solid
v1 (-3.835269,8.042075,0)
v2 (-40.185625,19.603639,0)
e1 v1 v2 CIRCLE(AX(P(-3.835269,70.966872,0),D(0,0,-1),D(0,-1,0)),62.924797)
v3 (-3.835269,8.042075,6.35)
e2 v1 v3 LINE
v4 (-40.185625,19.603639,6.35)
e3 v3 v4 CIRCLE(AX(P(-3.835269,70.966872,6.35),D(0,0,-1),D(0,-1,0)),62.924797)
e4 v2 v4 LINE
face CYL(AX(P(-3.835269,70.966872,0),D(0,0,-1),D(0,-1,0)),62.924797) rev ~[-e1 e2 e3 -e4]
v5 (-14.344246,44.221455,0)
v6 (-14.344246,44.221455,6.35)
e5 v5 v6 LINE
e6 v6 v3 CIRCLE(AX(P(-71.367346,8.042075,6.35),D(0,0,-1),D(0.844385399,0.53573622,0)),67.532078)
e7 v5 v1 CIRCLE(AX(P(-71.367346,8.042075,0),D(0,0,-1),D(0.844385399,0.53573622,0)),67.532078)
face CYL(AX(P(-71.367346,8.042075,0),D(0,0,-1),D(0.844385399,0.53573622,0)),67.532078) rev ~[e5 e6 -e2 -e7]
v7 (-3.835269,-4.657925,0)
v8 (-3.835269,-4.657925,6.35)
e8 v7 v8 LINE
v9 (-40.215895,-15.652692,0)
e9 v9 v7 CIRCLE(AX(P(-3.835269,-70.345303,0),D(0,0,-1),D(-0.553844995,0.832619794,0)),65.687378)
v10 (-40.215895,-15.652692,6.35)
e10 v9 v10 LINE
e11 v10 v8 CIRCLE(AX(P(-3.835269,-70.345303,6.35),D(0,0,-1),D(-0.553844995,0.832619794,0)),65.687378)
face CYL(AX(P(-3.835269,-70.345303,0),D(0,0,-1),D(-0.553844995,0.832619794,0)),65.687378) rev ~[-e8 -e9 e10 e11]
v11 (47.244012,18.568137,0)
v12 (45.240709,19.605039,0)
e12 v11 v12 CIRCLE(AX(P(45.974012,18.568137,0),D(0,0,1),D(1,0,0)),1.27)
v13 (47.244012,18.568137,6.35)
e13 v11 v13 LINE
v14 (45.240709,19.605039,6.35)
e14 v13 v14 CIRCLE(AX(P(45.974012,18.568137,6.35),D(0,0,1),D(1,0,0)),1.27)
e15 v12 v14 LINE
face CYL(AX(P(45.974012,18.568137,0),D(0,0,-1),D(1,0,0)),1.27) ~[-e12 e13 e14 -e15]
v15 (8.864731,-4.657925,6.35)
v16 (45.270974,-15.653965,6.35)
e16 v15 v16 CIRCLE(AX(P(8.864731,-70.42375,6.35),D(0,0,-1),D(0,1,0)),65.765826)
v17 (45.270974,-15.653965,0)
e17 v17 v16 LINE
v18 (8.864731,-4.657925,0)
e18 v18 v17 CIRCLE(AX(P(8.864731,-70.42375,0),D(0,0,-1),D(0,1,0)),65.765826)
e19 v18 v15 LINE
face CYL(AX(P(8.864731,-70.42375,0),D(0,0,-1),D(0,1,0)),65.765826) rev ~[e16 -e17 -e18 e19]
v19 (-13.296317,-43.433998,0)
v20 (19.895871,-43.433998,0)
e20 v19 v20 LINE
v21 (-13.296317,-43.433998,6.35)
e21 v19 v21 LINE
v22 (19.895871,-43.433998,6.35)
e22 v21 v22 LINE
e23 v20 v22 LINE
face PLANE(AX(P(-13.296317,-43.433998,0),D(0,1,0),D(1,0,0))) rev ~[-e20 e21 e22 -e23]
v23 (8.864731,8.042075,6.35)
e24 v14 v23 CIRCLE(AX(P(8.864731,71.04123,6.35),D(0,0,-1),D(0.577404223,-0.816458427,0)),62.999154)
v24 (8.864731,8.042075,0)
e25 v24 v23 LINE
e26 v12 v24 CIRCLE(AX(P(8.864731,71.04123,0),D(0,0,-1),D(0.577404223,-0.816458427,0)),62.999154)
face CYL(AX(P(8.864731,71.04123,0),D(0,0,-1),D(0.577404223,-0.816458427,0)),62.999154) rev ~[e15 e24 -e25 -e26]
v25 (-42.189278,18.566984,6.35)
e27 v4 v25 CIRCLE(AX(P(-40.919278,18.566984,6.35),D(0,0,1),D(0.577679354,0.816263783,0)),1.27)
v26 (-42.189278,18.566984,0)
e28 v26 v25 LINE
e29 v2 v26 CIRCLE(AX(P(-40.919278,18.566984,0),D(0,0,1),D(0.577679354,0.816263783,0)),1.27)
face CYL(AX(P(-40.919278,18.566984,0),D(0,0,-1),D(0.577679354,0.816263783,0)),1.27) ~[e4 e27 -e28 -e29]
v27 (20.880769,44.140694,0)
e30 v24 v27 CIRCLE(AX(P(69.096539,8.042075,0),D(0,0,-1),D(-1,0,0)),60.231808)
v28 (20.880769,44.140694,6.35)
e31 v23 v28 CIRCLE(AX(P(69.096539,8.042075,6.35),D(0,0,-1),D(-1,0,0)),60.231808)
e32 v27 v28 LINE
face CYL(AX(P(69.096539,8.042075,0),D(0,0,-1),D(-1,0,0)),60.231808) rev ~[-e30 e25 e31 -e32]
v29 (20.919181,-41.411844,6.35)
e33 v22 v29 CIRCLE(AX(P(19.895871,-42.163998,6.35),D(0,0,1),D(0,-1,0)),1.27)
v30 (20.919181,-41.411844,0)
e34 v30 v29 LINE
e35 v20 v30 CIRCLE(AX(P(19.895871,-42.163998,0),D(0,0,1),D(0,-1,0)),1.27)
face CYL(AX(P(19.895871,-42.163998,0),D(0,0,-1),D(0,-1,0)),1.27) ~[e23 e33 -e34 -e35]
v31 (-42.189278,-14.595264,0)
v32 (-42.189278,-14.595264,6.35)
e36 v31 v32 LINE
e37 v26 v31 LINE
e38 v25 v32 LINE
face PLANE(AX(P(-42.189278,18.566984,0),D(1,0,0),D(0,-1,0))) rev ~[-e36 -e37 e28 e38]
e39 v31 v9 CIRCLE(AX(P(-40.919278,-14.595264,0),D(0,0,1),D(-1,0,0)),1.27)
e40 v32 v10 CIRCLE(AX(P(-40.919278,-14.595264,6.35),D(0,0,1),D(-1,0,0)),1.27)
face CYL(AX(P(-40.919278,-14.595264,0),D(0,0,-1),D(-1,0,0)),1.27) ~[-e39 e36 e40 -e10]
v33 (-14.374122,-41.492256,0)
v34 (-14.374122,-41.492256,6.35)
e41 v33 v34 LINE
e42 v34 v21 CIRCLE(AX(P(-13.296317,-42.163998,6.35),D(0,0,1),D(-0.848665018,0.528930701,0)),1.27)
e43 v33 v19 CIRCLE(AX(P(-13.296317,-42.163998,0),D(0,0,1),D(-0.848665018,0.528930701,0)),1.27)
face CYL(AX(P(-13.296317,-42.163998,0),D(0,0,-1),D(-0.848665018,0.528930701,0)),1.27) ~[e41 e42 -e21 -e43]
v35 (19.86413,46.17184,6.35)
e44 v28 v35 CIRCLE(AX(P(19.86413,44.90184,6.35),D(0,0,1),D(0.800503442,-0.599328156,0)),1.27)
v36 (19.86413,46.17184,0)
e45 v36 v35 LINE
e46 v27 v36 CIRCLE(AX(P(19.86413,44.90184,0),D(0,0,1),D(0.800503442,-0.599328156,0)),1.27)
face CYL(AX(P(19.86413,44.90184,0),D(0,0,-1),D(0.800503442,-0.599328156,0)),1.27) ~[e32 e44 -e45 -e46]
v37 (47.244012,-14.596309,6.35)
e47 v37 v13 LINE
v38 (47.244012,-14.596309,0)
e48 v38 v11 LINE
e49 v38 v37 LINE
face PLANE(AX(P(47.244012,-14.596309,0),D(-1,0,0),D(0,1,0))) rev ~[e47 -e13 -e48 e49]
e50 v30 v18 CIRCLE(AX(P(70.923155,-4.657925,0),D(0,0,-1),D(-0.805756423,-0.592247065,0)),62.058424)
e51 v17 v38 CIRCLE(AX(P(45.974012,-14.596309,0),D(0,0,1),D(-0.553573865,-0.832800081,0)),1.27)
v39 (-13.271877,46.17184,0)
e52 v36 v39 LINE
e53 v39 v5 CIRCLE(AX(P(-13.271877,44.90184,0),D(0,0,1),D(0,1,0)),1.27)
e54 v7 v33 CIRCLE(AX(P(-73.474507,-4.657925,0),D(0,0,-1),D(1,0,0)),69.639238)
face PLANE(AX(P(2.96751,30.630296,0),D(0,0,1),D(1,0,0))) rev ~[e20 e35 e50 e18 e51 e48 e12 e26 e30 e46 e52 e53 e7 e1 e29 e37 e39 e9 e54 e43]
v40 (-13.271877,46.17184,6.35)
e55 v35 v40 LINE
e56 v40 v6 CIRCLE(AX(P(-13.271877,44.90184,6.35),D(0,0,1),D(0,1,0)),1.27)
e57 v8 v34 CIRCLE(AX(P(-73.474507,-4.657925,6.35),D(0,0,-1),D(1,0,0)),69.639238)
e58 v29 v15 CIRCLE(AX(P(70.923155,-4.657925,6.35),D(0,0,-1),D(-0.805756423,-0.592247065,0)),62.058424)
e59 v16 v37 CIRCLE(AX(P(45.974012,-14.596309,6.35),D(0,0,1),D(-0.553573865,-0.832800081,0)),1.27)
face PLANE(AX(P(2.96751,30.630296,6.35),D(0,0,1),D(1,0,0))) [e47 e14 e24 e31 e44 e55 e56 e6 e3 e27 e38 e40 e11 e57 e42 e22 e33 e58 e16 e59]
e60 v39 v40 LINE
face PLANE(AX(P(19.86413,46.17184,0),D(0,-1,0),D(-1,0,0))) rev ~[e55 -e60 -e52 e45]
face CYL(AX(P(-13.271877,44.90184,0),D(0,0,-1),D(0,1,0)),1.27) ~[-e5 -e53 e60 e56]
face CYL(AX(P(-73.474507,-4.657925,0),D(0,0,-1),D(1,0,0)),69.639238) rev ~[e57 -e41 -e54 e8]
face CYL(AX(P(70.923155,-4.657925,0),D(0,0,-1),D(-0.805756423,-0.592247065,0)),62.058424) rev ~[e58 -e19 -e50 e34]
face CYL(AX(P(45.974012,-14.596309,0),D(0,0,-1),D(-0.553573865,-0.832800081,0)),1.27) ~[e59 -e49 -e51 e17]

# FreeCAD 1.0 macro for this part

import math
import FreeCAD as App
import Part
import Sketcher
from FreeCAD import Vector
Q = App.Units.Quantity

doc = App.newDocument("Part")
body = doc.addObject("PartDesign::Body", "Body")

# Sketch on XY plane
sketch1 = body.newObject("Sketcher::SketchObject", "Sketch")
sketch1.AttachmentSupport = (doc.getObject("XY_Plane"), [""])
sketch1.MapMode = "FlatFace"
sketch1.addGeometry([
    Part.ArcOfCircle(Part.Circle(Vector(-71.367346, 8.042075, 0), Vector(0, 0, 1), 67.532078), math.radians(0), math.radians(32.393854)),  # 0
    Part.ArcOfCircle(Part.Circle(Vector(-3.835269, 70.966872, 0), Vector(0, 0, 1), 62.924797), math.radians(-125.287486), math.radians(-90)),  # 1
    Part.ArcOfCircle(Part.Circle(Vector(-40.919278, 18.566984, 0), Vector(0, 0, 1), 1.27), math.radians(54.712514), math.radians(180)),  # 2
    Part.LineSegment(Vector(-42.189278, 18.566984, 0), Vector(-42.189278, -14.595264, 0)),  # 3
    Part.ArcOfCircle(Part.Circle(Vector(-40.919278, -14.595264, 0), Vector(0, 0, 1), 1.27), math.radians(180), math.radians(303.631198)),  # 4
    Part.ArcOfCircle(Part.Circle(Vector(-3.835269, -70.345303, 0), Vector(0, 0, 1), 65.687378), math.radians(90), math.radians(123.631198)),  # 5
    Part.ArcOfCircle(Part.Circle(Vector(-73.474507, -4.657925, 0), Vector(0, 0, 1), 69.639238), math.radians(-31.933235), math.radians(0)),  # 6
    Part.ArcOfCircle(Part.Circle(Vector(-13.296317, -42.163998, 0), Vector(0, 0, 1), 1.27), math.radians(148.066765), math.radians(270)),  # 7
    Part.LineSegment(Vector(-13.296317, -43.433998, 0), Vector(19.895871, -43.433998, 0)),  # 8
    Part.ArcOfCircle(Part.Circle(Vector(19.895871, -42.163998, 0), Vector(0, 0, 1), 1.27), math.radians(-90), math.radians(36.316629)),  # 9
    Part.ArcOfCircle(Part.Circle(Vector(70.923155, -4.657925, 0), Vector(0, 0, 1), 62.058424), math.radians(-180), math.radians(-143.683371)),  # 10
    Part.ArcOfCircle(Part.Circle(Vector(8.864731, -70.42375, 0), Vector(0, 0, 1), 65.765826), math.radians(56.387458), math.radians(90)),  # 11
    Part.ArcOfCircle(Part.Circle(Vector(45.974012, -14.596309, 0), Vector(0, 0, 1), 1.27), math.radians(-123.612542), math.radians(0)),  # 12
    Part.LineSegment(Vector(47.244012, -14.596309, 0), Vector(47.244012, 18.568137, 0)),  # 13
    Part.ArcOfCircle(Part.Circle(Vector(45.974012, 18.568137, 0), Vector(0, 0, 1), 1.27), math.radians(0), math.radians(125.268176)),  # 14
    Part.ArcOfCircle(Part.Circle(Vector(8.864731, 71.04123, 0), Vector(0, 0, 1), 62.999154), math.radians(-90), math.radians(-54.731824)),  # 15
    Part.ArcOfCircle(Part.Circle(Vector(69.096539, 8.042075, 0), Vector(0, 0, 1), 60.231808), math.radians(143.178204), math.radians(180)),  # 16
    Part.ArcOfCircle(Part.Circle(Vector(19.86413, 44.90184, 0), Vector(0, 0, 1), 1.27), math.radians(-36.821795), math.radians(90)),  # 17
    Part.LineSegment(Vector(19.86413, 46.17184, 0), Vector(-13.271877, 46.17184, 0)),  # 18
    Part.ArcOfCircle(Part.Circle(Vector(-13.271877, 44.90184, 0), Vector(0, 0, 1), 1.27), math.radians(90), math.radians(212.393854)),  # 19
], False)
sketch1.addConstraint([
    Sketcher.Constraint("Coincident", 0, 1, 1, 2),
    Sketcher.Constraint("Tangent", 1, 1, 2, 1),
    Sketcher.Constraint("Tangent", 2, 2, 3, 1),
    Sketcher.Constraint("Tangent", 3, 2, 4, 1),
    Sketcher.Constraint("Tangent", 4, 2, 5, 2),
    Sketcher.Constraint("Coincident", 5, 1, 6, 2),
    Sketcher.Constraint("Tangent", 6, 1, 7, 1),
    Sketcher.Constraint("Tangent", 7, 2, 8, 1),
    Sketcher.Constraint("Tangent", 8, 2, 9, 1),
    Sketcher.Constraint("Tangent", 9, 2, 10, 2),
    Sketcher.Constraint("Coincident", 10, 1, 11, 2),
    Sketcher.Constraint("Tangent", 11, 1, 12, 1),
    Sketcher.Constraint("Tangent", 12, 2, 13, 1),
    Sketcher.Constraint("Tangent", 13, 2, 14, 1),
    Sketcher.Constraint("Tangent", 14, 2, 15, 2),
    Sketcher.Constraint("Coincident", 15, 1, 16, 2),
    Sketcher.Constraint("Tangent", 16, 1, 17, 1),
    Sketcher.Constraint("Tangent", 17, 2, 18, 1),
    Sketcher.Constraint("Tangent", 18, 2, 19, 1),
    Sketcher.Constraint("Tangent", 19, 2, 0, 2),
    Sketcher.Constraint("Vertical", 3),
    Sketcher.Constraint("Horizontal", 8),
    Sketcher.Constraint("Vertical", 13),
    Sketcher.Constraint("Horizontal", 18),
    Sketcher.Constraint("Equal", 2, 4),
    Sketcher.Constraint("Equal", 4, 7),
    Sketcher.Constraint("Equal", 7, 9),
    Sketcher.Constraint("Equal", 9, 12),
    Sketcher.Constraint("Equal", 12, 14),
    Sketcher.Constraint("Equal", 14, 17),
    Sketcher.Constraint("Equal", 17, 19),
    Sketcher.Constraint("Horizontal", 6, 3, 10, 3),
    Sketcher.Constraint("Horizontal", 0, 3, 16, 3),
    Sketcher.Constraint("Horizontal", 16, 3, 0, 1),
    Sketcher.Constraint("Horizontal", 10, 3, 5, 1),
    Sketcher.Constraint("Horizontal", 5, 1, 10, 1),
    Sketcher.Constraint("Horizontal", 0, 1, 15, 1),
    Sketcher.Constraint("Vertical", 1, 3, 5, 3),
    Sketcher.Constraint("Vertical", 11, 3, 15, 3),
    Sketcher.Constraint("Vertical", 5, 3, 0, 1),
    Sketcher.Constraint("Vertical", 0, 1, 5, 1),
    Sketcher.Constraint("Vertical", 15, 3, 10, 1),
    Sketcher.Constraint("Vertical", 10, 1, 15, 1),
    Sketcher.Constraint("Radius", 2, Q("0.05 in")),
    Sketcher.Constraint("DistanceY", 6, 3, 0, 3, Q("0.5 in")),
    Sketcher.Constraint("DistanceX", 5, 3, 11, 3, Q("0.5 in")),
    Sketcher.Constraint("DistanceY", 7, 3, -1, 1, Q("1.6599999 in")),
    Sketcher.Constraint("Radius", 5, Q("65.687378 mm")),
    Sketcher.Constraint("Radius", 6, Q("69.639238 mm")),
    Sketcher.Constraint("DistanceY", 5, 3, -1, 1, Q("2.7695001 in")),
    Sketcher.Constraint("Radius", 0, Q("67.532078 mm")),
    Sketcher.Constraint("Radius", 1, Q("62.924797 mm")),
    Sketcher.Constraint("Radius", 10, Q("62.058424 mm")),
    Sketcher.Constraint("Radius", 11, Q("65.765826 mm")),
    Sketcher.Constraint("Radius", 15, Q("62.999154 mm")),
    Sketcher.Constraint("Radius", 16, Q("60.231808 mm")),
    Sketcher.Constraint("DistanceY", 3, 2, 3, 1, Q("33.162249 mm")),
    Sketcher.Constraint("DistanceX", 15, 3, 17, 3, Q("10.999399 mm")),
    Sketcher.Constraint("DistanceY", 13, 1, 13, 2, Q("33.164446 mm")),
    Sketcher.Constraint("DistanceX", 1, 3, -1, 1, Q("3.835269 mm")),
])
pad1 = body.newObject("PartDesign::Pad", "Pad")
pad1.Profile = sketch1
pad1.Length = Q("0.25 in")

doc.recompute()
